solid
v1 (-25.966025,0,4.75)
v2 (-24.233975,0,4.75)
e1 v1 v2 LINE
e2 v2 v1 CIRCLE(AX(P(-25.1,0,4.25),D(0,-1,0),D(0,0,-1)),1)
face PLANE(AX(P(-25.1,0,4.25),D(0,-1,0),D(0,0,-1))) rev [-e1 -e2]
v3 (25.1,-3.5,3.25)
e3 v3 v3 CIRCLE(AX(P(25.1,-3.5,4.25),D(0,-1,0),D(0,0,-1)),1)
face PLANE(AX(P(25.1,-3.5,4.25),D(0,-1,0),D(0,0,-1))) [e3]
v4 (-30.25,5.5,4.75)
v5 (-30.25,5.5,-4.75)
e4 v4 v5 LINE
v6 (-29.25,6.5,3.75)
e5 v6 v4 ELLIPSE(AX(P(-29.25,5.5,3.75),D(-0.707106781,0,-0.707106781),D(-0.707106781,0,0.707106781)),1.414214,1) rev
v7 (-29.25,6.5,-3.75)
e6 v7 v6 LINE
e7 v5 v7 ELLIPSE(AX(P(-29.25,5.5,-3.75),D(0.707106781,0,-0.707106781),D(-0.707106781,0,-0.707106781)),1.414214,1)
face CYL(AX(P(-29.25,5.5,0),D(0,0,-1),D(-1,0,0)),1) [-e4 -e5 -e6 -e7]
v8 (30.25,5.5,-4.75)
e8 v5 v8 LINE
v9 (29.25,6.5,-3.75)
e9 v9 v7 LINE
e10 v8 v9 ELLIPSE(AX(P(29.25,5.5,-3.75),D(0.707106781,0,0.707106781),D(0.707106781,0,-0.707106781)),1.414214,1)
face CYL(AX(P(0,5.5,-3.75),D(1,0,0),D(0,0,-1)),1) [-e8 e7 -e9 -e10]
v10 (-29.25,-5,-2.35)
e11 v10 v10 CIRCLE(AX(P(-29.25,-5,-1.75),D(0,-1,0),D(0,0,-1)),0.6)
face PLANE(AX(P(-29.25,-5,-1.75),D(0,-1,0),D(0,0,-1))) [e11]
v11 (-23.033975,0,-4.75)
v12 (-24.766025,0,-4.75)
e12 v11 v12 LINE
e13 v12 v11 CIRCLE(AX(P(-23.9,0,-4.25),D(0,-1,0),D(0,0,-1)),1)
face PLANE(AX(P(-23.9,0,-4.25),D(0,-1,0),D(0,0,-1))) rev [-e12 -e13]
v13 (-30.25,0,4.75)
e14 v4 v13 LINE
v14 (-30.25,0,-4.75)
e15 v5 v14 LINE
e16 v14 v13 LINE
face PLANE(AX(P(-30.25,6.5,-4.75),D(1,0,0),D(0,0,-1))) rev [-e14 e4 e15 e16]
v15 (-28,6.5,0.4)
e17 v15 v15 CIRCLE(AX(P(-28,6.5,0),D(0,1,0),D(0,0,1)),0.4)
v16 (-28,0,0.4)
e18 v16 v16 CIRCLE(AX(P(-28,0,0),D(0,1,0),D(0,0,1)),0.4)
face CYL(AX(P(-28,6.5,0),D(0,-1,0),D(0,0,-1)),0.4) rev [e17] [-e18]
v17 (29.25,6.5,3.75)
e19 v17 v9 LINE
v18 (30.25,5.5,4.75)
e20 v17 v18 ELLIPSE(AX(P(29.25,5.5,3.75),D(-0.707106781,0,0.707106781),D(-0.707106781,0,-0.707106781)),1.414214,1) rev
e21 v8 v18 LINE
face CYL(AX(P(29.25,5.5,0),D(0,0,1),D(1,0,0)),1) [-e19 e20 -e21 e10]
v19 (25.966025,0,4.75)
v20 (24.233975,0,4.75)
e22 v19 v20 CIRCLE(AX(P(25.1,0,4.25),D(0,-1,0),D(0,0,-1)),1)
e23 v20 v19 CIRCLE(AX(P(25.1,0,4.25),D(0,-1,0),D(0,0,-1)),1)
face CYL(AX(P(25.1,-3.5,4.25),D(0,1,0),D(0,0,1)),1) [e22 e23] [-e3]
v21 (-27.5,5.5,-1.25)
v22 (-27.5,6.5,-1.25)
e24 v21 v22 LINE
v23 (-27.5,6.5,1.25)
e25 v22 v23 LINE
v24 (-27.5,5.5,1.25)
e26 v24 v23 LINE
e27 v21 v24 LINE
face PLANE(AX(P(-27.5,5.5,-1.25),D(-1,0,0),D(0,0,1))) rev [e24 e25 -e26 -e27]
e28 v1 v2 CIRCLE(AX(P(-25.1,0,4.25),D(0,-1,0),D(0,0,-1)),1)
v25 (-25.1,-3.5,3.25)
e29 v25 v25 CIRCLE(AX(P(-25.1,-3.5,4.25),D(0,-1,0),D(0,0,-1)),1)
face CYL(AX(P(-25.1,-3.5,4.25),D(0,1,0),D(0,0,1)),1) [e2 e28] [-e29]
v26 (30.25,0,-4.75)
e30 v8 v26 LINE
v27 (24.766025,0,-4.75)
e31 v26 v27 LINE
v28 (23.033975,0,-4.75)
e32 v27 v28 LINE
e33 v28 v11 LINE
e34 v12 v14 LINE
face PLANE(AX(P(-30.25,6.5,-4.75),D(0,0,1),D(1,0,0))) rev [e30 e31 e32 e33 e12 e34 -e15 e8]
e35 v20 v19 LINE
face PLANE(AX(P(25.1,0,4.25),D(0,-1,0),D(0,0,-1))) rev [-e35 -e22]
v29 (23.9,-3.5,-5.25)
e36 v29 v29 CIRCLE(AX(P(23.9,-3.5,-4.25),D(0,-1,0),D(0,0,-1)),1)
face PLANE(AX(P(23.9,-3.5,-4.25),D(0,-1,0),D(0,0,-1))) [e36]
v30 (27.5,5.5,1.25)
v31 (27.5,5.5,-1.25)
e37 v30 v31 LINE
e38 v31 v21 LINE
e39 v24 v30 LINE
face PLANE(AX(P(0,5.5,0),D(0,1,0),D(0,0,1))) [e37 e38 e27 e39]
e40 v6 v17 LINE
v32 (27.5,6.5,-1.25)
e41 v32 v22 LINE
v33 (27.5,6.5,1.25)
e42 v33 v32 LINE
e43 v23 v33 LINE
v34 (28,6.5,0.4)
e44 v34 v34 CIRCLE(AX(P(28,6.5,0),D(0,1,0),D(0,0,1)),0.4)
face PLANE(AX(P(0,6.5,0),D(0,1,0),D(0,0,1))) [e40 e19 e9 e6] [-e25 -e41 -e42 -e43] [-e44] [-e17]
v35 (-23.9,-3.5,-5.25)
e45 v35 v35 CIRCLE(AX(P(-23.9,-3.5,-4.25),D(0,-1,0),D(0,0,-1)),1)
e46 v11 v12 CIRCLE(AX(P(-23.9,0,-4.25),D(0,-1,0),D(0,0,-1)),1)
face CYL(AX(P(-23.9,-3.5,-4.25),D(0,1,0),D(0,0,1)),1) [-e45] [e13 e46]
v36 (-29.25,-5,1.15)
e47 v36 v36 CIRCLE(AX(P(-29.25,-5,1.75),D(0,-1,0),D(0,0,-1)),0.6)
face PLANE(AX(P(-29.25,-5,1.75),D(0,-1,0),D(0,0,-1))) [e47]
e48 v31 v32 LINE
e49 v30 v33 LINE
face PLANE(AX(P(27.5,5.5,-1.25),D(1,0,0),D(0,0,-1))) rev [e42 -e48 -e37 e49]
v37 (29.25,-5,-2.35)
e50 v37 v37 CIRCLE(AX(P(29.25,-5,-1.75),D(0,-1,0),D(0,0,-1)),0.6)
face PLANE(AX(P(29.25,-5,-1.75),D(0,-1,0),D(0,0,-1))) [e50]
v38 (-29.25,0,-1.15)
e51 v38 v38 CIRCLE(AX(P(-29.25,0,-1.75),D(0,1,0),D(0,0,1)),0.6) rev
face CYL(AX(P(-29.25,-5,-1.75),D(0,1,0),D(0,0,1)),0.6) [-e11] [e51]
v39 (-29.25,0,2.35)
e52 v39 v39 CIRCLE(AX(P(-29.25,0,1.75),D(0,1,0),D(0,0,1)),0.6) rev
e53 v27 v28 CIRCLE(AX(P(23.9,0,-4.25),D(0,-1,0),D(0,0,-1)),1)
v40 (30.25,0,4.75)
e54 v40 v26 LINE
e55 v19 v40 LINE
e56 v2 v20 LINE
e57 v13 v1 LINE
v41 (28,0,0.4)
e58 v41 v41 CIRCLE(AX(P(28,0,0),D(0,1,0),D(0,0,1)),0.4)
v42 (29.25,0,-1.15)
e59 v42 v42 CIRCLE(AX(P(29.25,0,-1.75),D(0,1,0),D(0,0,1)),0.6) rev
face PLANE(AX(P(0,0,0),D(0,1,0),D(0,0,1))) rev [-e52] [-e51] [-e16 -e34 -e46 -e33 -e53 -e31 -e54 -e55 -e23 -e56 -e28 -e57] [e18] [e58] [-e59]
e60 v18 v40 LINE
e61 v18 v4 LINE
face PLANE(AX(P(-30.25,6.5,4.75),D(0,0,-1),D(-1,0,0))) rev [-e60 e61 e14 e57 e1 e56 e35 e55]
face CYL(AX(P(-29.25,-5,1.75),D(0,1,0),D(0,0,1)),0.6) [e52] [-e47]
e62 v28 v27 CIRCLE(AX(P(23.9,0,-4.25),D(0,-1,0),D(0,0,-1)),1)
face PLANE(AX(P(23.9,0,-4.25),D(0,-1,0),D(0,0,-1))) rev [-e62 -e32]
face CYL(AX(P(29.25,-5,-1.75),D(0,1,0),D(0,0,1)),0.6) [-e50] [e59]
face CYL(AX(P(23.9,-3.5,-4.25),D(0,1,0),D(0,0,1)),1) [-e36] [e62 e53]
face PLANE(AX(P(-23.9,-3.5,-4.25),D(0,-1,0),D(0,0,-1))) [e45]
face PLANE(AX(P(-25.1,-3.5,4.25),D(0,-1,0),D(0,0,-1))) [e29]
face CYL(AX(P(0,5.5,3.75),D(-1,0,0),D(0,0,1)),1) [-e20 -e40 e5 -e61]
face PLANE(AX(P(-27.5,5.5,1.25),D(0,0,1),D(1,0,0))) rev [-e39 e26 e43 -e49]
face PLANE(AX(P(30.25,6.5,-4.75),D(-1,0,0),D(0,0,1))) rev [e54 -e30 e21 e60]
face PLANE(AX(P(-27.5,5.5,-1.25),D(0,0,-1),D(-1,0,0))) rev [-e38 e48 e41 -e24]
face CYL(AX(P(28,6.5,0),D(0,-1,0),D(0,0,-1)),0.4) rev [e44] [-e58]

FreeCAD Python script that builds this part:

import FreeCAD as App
import Part
import Sketcher
Q = App.Units.Quantity


def edges_at(feature, points):
    """Names of the edges that pass closest to the given points."""
    edges = feature.Shape.Edges
    near = lambda p: min(range(len(edges)), key=lambda i: edges[i].distToShape(Part.Vertex(*p))[0])
    return sorted({f"Edge{near(p) + 1}" for p in points})

doc = App.newDocument("Part")
params = doc.addObject("Spreadsheet::Sheet", "Params")
for row, (alias, value) in enumerate([
    ("sketch1_diameter", "0.8 mm"),
    ("sketch1_width", "60.5 mm"),
    ("sketch1_height", "9.5 mm"),
    ("pad1_length", "6.5 mm"),
    ("sketch2_diameter", "2 mm"),
    ("pad2_length", "3.5 mm"),
    ("sketch3_diameter", "1.2 mm"),
    ("pad3_length", "5 mm"),
    ("sketch4_width", "55 mm"),
    ("sketch4_height", "2.5 mm"),
    ("pocket1_length", "1 mm"),
    ("fillet_radius", "1 mm"),
], start=1):
    params.set(f"A{row}", alias)
    params.set(f"B{row}", "=" + value)
    params.setAlias(f"B{row}", alias)

body = doc.addObject("PartDesign::Body", "Body")

# Sketch on XZ plane
sketch1 = body.newObject("Sketcher::SketchObject", "Sketch")
sketch1.AttachmentSupport = (doc.getObject("XZ_Plane"), [""])
sketch1.MapMode = "FlatFace"
sketch1.addGeometry(Part.LineSegment(App.Vector(-30.25, -4.75, 0), App.Vector(-30.25, 4.75, 0)), False)
sketch1.addGeometry(Part.LineSegment(App.Vector(-30.25, 4.75, 0), App.Vector(30.25, 4.75, 0)), False)
sketch1.addGeometry(Part.LineSegment(App.Vector(30.25, 4.75, 0), App.Vector(30.25, -4.75, 0)), False)
sketch1.addGeometry(Part.LineSegment(App.Vector(30.25, -4.75, 0), App.Vector(-30.25, -4.75, 0)), False)
sketch1.addGeometry(Part.Circle(App.Vector(-28, 0, 0), App.Vector(0, 0, 1), 0.4), False)
sketch1.addGeometry(Part.Circle(App.Vector(28, 0, 0), App.Vector(0, 0, 1), 0.4), False)
sketch1.addConstraint(Sketcher.Constraint("Coincident", 0, 2, 1, 1))
sketch1.addConstraint(Sketcher.Constraint("Coincident", 1, 2, 2, 1))
sketch1.addConstraint(Sketcher.Constraint("Coincident", 2, 2, 3, 1))
sketch1.addConstraint(Sketcher.Constraint("Coincident", 3, 2, 0, 1))
sketch1.addConstraint(Sketcher.Constraint("Vertical", 0))
sketch1.addConstraint(Sketcher.Constraint("Horizontal", 1))
sketch1.addConstraint(Sketcher.Constraint("Vertical", 2))
sketch1.addConstraint(Sketcher.Constraint("Horizontal", 3))
sketch1.addConstraint(Sketcher.Constraint("Equal", 4, 5))
sketch1.addConstraint(Sketcher.Constraint("Symmetric", 4, 3, 5, 3, -1, 1))
sketch1.addConstraint(Sketcher.Constraint("Symmetric", 0, 2, 2, 2, -1, 1))
sketch1.addConstraint(Sketcher.Constraint("PointOnObject", 4, 3, -1))
sketch1.addConstraint(Sketcher.Constraint("Diameter", 4, Q("0.8 mm")))
sketch1.addConstraint(Sketcher.Constraint("DistanceX", 1, 1, 1, 2, Q("60.5 mm")))
sketch1.addConstraint(Sketcher.Constraint("DistanceY", 0, 1, 0, 2, Q("9.5 mm")))
sketch1.addConstraint(Sketcher.Constraint("DistanceX", 4, 3, -1, 1, Q("28 mm")))
sketch1.setExpression("Constraints[12]", "Params.sketch1_diameter")
sketch1.setExpression("Constraints[13]", "Params.sketch1_width")
sketch1.setExpression("Constraints[14]", "Params.sketch1_height")
pad1 = body.newObject("PartDesign::Pad", "Pad")
pad1.Profile = sketch1
pad1.setExpression("Length", "Params.pad1_length")
pad1.Reversed = True

# Sketch on XZ plane
sketch2 = body.newObject("Sketcher::SketchObject", "Sketch001")
sketch2.AttachmentSupport = (doc.getObject("XZ_Plane"), [""])
sketch2.MapMode = "FlatFace"
sketch2.addGeometry(Part.Circle(App.Vector(-25.1, 4.2, 0), App.Vector(0, 0, 1), 1), False)
sketch2.addGeometry(Part.Circle(App.Vector(-23.9, -4.2, 0), App.Vector(0, 0, 1), 1), False)
sketch2.addGeometry(Part.Circle(App.Vector(25.1, 4.2, 0), App.Vector(0, 0, 1), 1), False)
sketch2.addGeometry(Part.Circle(App.Vector(23.9, -4.2, 0), App.Vector(0, 0, 1), 1), False)
sketch2.addConstraint(Sketcher.Constraint("Equal", 0, 1))
sketch2.addConstraint(Sketcher.Constraint("Equal", 1, 2))
sketch2.addConstraint(Sketcher.Constraint("Equal", 2, 3))
sketch2.addConstraint(Sketcher.Constraint("Symmetric", 0, 3, 2, 3, -2))
sketch2.addConstraint(Sketcher.Constraint("Symmetric", 1, 3, 3, 3, -2))
sketch2.addConstraint(Sketcher.Constraint("Diameter", 0, Q("2 mm")))
sketch2.addConstraint(Sketcher.Constraint("DistanceX", 1, 3, 2, 3, Q("49 mm")))
sketch2.addConstraint(Sketcher.Constraint("DistanceX", 0, 3, -1, 1, Q("25.1 mm")))
sketch2.addConstraint(Sketcher.Constraint("DistanceY", 1, 3, 0, 3, Q("8.5 mm")))
sketch2.addConstraint(Sketcher.Constraint("DistanceY", -1, 1, 0, 3, Q("4.25 mm")))
sketch2.setExpression("Constraints[5]", "Params.sketch2_diameter")
pad2 = body.newObject("PartDesign::Pad", "Pad001")
pad2.Profile = sketch2
pad2.setExpression("Length", "Params.pad2_length")

# Sketch on XZ plane
sketch3 = body.newObject("Sketcher::SketchObject", "Sketch002")
sketch3.AttachmentSupport = (doc.getObject("XZ_Plane"), [""])
sketch3.MapMode = "FlatFace"
sketch3.addGeometry(Part.Circle(App.Vector(-29.2, 1.8, 0), App.Vector(0, 0, 1), 0.6), False)
sketch3.addGeometry(Part.Circle(App.Vector(-29.2, -1.8, 0), App.Vector(0, 0, 1), 0.6), False)
sketch3.addGeometry(Part.Circle(App.Vector(29.2, -1.8, 0), App.Vector(0, 0, 1), 0.6), False)
sketch3.addConstraint(Sketcher.Constraint("Equal", 0, 1))
sketch3.addConstraint(Sketcher.Constraint("Equal", 1, 2))
sketch3.addConstraint(Sketcher.Constraint("Symmetric", 0, 3, 2, 3, -1, 1))
sketch3.addConstraint(Sketcher.Constraint("Symmetric", 1, 3, 2, 3, -2))
sketch3.addConstraint(Sketcher.Constraint("Diameter", 0, Q("1.2 mm")))
sketch3.addConstraint(Sketcher.Constraint("DistanceY", 1, 3, 0, 3, Q("3.5 mm")))
sketch3.addConstraint(Sketcher.Constraint("DistanceX", 1, 3, 2, 3, Q("58.5 mm")))
sketch3.setExpression("Constraints[4]", "Params.sketch3_diameter")
pad3 = body.newObject("PartDesign::Pad", "Pad002")
pad3.Profile = sketch3
pad3.setExpression("Length", "Params.pad3_length")

# Sketch on XZ plane
sketch4 = body.newObject("Sketcher::SketchObject", "Sketch003")
sketch4.AttachmentSupport = (doc.getObject("XZ_Plane"), [""])
sketch4.MapMode = "FlatFace"
sketch4.AttachmentOffset = App.Placement(App.Vector(0, 0, -6.5), App.Rotation())
sketch4.addGeometry(Part.LineSegment(App.Vector(-27.5, -1.2, 0), App.Vector(-27.5, 1.2, 0)), False)
sketch4.addGeometry(Part.LineSegment(App.Vector(-27.5, 1.2, 0), App.Vector(27.5, 1.2, 0)), False)
sketch4.addGeometry(Part.LineSegment(App.Vector(27.5, 1.2, 0), App.Vector(27.5, -1.2, 0)), False)
sketch4.addGeometry(Part.LineSegment(App.Vector(27.5, -1.2, 0), App.Vector(-27.5, -1.2, 0)), False)
sketch4.addConstraint(Sketcher.Constraint("Coincident", 0, 2, 1, 1))
sketch4.addConstraint(Sketcher.Constraint("Coincident", 1, 2, 2, 1))
sketch4.addConstraint(Sketcher.Constraint("Coincident", 2, 2, 3, 1))
sketch4.addConstraint(Sketcher.Constraint("Coincident", 3, 2, 0, 1))
sketch4.addConstraint(Sketcher.Constraint("Vertical", 0))
sketch4.addConstraint(Sketcher.Constraint("Horizontal", 1))
sketch4.addConstraint(Sketcher.Constraint("Vertical", 2))
sketch4.addConstraint(Sketcher.Constraint("Horizontal", 3))
sketch4.addConstraint(Sketcher.Constraint("Symmetric", 0, 2, 2, 2, -1, 1))
sketch4.addConstraint(Sketcher.Constraint("DistanceX", 1, 1, 1, 2, Q("55 mm")))
sketch4.addConstraint(Sketcher.Constraint("DistanceY", 0, 1, 0, 2, Q("2.5 mm")))
sketch4.setExpression("Constraints[9]", "Params.sketch4_width")
sketch4.setExpression("Constraints[10]", "Params.sketch4_height")
pocket1 = body.newObject("PartDesign::Pocket", "Pocket")
pocket1.Profile = sketch4
pocket1.setExpression("Length", "Params.pocket1_length")
pocket1.Reversed = True
doc.recompute()

fillet = body.newObject("PartDesign::Fillet", "Fillet")
fillet.Base = (pocket1, edges_at(pocket1, [
    (30.25, 6.5, 0),
    (0, 6.5, -4.75),
    (-30.25, 6.5, 0),
    (0, 6.5, 4.75),
]))
fillet.setExpression("Radius", "Params.fillet_radius")

doc.recompute()
